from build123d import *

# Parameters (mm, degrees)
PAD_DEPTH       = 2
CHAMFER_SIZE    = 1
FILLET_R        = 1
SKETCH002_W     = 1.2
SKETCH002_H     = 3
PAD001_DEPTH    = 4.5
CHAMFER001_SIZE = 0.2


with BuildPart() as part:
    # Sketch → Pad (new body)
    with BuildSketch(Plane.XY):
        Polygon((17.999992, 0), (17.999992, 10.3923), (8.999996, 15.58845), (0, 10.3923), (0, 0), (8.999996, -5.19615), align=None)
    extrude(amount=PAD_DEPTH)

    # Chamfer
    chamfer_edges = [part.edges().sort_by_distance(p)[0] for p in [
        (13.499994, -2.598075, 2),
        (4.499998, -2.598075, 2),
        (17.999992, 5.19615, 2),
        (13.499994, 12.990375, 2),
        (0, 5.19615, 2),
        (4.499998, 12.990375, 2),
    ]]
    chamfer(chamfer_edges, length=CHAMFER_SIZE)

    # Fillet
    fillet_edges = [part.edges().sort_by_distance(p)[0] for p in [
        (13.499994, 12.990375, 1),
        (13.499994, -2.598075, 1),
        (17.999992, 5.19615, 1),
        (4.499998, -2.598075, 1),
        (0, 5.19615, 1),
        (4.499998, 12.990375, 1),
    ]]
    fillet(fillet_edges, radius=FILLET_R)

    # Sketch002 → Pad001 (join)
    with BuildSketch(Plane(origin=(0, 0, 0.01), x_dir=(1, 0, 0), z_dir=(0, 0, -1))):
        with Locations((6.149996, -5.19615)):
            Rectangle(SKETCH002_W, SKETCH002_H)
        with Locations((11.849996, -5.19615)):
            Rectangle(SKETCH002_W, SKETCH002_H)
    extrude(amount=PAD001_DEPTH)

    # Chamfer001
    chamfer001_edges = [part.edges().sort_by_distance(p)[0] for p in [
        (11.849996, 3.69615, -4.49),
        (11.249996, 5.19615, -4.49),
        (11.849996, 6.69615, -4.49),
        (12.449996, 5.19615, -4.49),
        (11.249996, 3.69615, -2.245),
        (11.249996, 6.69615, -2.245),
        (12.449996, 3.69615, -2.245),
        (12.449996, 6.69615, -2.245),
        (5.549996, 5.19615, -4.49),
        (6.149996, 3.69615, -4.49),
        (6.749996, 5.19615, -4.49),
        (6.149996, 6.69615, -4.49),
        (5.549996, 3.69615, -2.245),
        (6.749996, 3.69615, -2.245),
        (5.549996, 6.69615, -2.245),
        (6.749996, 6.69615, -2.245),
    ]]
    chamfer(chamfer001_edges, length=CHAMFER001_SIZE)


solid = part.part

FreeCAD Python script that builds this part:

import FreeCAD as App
import Part
import Sketcher
from FreeCAD import Vector
Q = App.Units.Quantity


def edges_at(feature, points):
    """Names of the edges that pass closest to the given points."""
    edges = feature.Shape.Edges
    near = lambda p: min(range(len(edges)), key=lambda i: edges[i].distToShape(Part.Vertex(*p))[0])
    return sorted({f"Edge{near(p) + 1}" for p in points})

doc = App.newDocument("Part")
body = doc.addObject("PartDesign::Body", "Body")

# Sketch on XY plane
sketch1 = body.newObject("Sketcher::SketchObject", "Sketch")
sketch1.AttachmentSupport = (doc.getObject("XY_Plane"), [""])
sketch1.MapMode = "FlatFace"
sketch1.addGeometry([
    Part.LineSegment(Vector(18, 0, 0), Vector(18, 10, 0)),  # 0
    Part.LineSegment(Vector(18, 10, 0), Vector(9, 16, 0)),  # 1
    Part.LineSegment(Vector(9, 16, 0), Vector(0, 10, 0)),  # 2
    Part.LineSegment(Vector(0, 10, 0), Vector(0, 0, 0)),  # 3
    Part.LineSegment(Vector(0, 0, 0), Vector(9, -5, 0)),  # 4
    Part.LineSegment(Vector(9, -5, 0), Vector(18, 0, 0)),  # 5
], False)
sketch1.addConstraint([
    Sketcher.Constraint("Coincident", 0, 2, 1, 1),
    Sketcher.Constraint("Coincident", 1, 2, 2, 1),
    Sketcher.Constraint("Coincident", 2, 2, 3, 1),
    Sketcher.Constraint("Coincident", 3, 2, 4, 1),
    Sketcher.Constraint("Coincident", 4, 2, 5, 1),
    Sketcher.Constraint("Coincident", 5, 2, 0, 1),
    Sketcher.Constraint("Vertical", 0),
    Sketcher.Constraint("Vertical", 3),
    Sketcher.Constraint("Coincident", 3, 2, -1, 1),
    Sketcher.Constraint("PointOnObject", 5, 2, -1),
    Sketcher.Constraint("Parallel", 1, 4),
    Sketcher.Constraint("Parallel", 2, 5),
    Sketcher.Constraint("Horizontal", 0, 2, 2, 2),
    Sketcher.Constraint("Vertical", 1, 2, 4, 2),
    Sketcher.Constraint("Angle", 1, Q("150.000001 deg")),
    Sketcher.Constraint("DistanceY", 0, 1, 0, 2, 10.3923),
    Sketcher.Constraint("Distance", 1, 10.3923),
])
pad1 = body.newObject("PartDesign::Pad", "Pad")
pad1.Profile = sketch1
pad1.Length = 2
doc.recompute()

chamfer = body.newObject("PartDesign::Chamfer", "Chamfer")
chamfer.Base = (pad1, edges_at(pad1, [
    (13.5, -2.598, 2),
    (4.5, -2.598, 2),
    (18, 5.196, 2),
    (13.5, 12.99, 2),
    (0, 5.196, 2),
    (4.5, 12.99, 2),
]))
chamfer.Size = 1
doc.recompute()

fillet = body.newObject("PartDesign::Fillet", "Fillet")
fillet.Base = (chamfer, edges_at(chamfer, [
    (13.5, 12.99, 1),
    (13.5, -2.598, 1),
    (18, 5.196, 1),
    (4.5, -2.598, 1),
    (0, 5.196, 1),
    (4.5, 12.99, 1),
]))
fillet.Radius = 1

# Sketch on XY plane
sketch2 = body.newObject("Sketcher::SketchObject", "Sketch001")
sketch2.AttachmentSupport = (doc.getObject("XY_Plane"), [""])
sketch2.MapMode = "FlatFace"
sketch2.AttachmentOffset = App.Placement(Vector(0, 0, 0.01), App.Rotation())
sketch2.addGeometry([
    Part.LineSegment(Vector(5.5, 3.7, 0), Vector(5.5, 6.7, 0)),  # 0
    Part.LineSegment(Vector(5.5, 6.7, 0), Vector(6.7, 6.7, 0)),  # 1
    Part.LineSegment(Vector(6.7, 6.7, 0), Vector(6.7, 3.7, 0)),  # 2
    Part.LineSegment(Vector(6.7, 3.7, 0), Vector(5.5, 3.7, 0)),  # 3
    Part.LineSegment(Vector(11.2, 3.7, 0), Vector(11.2, 6.7, 0)),  # 4
    Part.LineSegment(Vector(11.2, 6.7, 0), Vector(12.4, 6.7, 0)),  # 5
    Part.LineSegment(Vector(12.4, 6.7, 0), Vector(12.4, 3.7, 0)),  # 6
    Part.LineSegment(Vector(12.4, 3.7, 0), Vector(11.2, 3.7, 0)),  # 7
], False)
sketch2.addConstraint([
    Sketcher.Constraint("Coincident", 0, 2, 1, 1),
    Sketcher.Constraint("Coincident", 1, 2, 2, 1),
    Sketcher.Constraint("Coincident", 2, 2, 3, 1),
    Sketcher.Constraint("Coincident", 3, 2, 0, 1),
    Sketcher.Constraint("Coincident", 4, 2, 5, 1),
    Sketcher.Constraint("Coincident", 5, 2, 6, 1),
    Sketcher.Constraint("Coincident", 6, 2, 7, 1),
    Sketcher.Constraint("Coincident", 7, 2, 4, 1),
    Sketcher.Constraint("Vertical", 0),
    Sketcher.Constraint("Horizontal", 1),
    Sketcher.Constraint("Vertical", 2),
    Sketcher.Constraint("Horizontal", 3),
    Sketcher.Constraint("Vertical", 4),
    Sketcher.Constraint("Horizontal", 5),
    Sketcher.Constraint("Vertical", 6),
    Sketcher.Constraint("Horizontal", 7),
    Sketcher.Constraint("Horizontal", 1, 2, 4, 2),
    Sketcher.Constraint("Horizontal", 3, 2, 6, 2),
    Sketcher.Constraint("Equal", 3, 5),
    Sketcher.Constraint("DistanceY", 0, 1, 0, 2, 3.0),
    Sketcher.Constraint("DistanceX", 1, 1, 1, 2, 1.2),
    Sketcher.Constraint("DistanceX", 1, 2, 4, 2, 4.5),
    Sketcher.Constraint("DistanceY", -1, 1, 0, 2, 6.69615),
    Sketcher.Constraint("DistanceX", -1, 1, 0, 2, 5.549996),
])
pad2 = body.newObject("PartDesign::Pad", "Pad001")
pad2.Profile = sketch2
pad2.Length = 4.5
pad2.Reversed = True
doc.recompute()

chamfer2 = body.newObject("PartDesign::Chamfer", "Chamfer001")
chamfer2.Base = (pad2, edges_at(pad2, [
    (11.85, 3.696, -4.49),
    (11.25, 5.196, -4.49),
    (11.85, 6.696, -4.49),
    (12.45, 5.196, -4.49),
    (11.25, 3.696, -2.245),
    (11.25, 6.696, -2.245),
    (12.45, 3.696, -2.245),
    (12.45, 6.696, -2.245),
    (5.55, 5.196, -4.49),
    (6.15, 3.696, -4.49),
    (6.75, 5.196, -4.49),
    (6.15, 6.696, -4.49),
    (5.55, 3.696, -2.245),
    (6.75, 3.696, -2.245),
    (5.55, 6.696, -2.245),
    (6.75, 6.696, -2.245),
]))
chamfer2.Size = 0.2

doc.recompute()
